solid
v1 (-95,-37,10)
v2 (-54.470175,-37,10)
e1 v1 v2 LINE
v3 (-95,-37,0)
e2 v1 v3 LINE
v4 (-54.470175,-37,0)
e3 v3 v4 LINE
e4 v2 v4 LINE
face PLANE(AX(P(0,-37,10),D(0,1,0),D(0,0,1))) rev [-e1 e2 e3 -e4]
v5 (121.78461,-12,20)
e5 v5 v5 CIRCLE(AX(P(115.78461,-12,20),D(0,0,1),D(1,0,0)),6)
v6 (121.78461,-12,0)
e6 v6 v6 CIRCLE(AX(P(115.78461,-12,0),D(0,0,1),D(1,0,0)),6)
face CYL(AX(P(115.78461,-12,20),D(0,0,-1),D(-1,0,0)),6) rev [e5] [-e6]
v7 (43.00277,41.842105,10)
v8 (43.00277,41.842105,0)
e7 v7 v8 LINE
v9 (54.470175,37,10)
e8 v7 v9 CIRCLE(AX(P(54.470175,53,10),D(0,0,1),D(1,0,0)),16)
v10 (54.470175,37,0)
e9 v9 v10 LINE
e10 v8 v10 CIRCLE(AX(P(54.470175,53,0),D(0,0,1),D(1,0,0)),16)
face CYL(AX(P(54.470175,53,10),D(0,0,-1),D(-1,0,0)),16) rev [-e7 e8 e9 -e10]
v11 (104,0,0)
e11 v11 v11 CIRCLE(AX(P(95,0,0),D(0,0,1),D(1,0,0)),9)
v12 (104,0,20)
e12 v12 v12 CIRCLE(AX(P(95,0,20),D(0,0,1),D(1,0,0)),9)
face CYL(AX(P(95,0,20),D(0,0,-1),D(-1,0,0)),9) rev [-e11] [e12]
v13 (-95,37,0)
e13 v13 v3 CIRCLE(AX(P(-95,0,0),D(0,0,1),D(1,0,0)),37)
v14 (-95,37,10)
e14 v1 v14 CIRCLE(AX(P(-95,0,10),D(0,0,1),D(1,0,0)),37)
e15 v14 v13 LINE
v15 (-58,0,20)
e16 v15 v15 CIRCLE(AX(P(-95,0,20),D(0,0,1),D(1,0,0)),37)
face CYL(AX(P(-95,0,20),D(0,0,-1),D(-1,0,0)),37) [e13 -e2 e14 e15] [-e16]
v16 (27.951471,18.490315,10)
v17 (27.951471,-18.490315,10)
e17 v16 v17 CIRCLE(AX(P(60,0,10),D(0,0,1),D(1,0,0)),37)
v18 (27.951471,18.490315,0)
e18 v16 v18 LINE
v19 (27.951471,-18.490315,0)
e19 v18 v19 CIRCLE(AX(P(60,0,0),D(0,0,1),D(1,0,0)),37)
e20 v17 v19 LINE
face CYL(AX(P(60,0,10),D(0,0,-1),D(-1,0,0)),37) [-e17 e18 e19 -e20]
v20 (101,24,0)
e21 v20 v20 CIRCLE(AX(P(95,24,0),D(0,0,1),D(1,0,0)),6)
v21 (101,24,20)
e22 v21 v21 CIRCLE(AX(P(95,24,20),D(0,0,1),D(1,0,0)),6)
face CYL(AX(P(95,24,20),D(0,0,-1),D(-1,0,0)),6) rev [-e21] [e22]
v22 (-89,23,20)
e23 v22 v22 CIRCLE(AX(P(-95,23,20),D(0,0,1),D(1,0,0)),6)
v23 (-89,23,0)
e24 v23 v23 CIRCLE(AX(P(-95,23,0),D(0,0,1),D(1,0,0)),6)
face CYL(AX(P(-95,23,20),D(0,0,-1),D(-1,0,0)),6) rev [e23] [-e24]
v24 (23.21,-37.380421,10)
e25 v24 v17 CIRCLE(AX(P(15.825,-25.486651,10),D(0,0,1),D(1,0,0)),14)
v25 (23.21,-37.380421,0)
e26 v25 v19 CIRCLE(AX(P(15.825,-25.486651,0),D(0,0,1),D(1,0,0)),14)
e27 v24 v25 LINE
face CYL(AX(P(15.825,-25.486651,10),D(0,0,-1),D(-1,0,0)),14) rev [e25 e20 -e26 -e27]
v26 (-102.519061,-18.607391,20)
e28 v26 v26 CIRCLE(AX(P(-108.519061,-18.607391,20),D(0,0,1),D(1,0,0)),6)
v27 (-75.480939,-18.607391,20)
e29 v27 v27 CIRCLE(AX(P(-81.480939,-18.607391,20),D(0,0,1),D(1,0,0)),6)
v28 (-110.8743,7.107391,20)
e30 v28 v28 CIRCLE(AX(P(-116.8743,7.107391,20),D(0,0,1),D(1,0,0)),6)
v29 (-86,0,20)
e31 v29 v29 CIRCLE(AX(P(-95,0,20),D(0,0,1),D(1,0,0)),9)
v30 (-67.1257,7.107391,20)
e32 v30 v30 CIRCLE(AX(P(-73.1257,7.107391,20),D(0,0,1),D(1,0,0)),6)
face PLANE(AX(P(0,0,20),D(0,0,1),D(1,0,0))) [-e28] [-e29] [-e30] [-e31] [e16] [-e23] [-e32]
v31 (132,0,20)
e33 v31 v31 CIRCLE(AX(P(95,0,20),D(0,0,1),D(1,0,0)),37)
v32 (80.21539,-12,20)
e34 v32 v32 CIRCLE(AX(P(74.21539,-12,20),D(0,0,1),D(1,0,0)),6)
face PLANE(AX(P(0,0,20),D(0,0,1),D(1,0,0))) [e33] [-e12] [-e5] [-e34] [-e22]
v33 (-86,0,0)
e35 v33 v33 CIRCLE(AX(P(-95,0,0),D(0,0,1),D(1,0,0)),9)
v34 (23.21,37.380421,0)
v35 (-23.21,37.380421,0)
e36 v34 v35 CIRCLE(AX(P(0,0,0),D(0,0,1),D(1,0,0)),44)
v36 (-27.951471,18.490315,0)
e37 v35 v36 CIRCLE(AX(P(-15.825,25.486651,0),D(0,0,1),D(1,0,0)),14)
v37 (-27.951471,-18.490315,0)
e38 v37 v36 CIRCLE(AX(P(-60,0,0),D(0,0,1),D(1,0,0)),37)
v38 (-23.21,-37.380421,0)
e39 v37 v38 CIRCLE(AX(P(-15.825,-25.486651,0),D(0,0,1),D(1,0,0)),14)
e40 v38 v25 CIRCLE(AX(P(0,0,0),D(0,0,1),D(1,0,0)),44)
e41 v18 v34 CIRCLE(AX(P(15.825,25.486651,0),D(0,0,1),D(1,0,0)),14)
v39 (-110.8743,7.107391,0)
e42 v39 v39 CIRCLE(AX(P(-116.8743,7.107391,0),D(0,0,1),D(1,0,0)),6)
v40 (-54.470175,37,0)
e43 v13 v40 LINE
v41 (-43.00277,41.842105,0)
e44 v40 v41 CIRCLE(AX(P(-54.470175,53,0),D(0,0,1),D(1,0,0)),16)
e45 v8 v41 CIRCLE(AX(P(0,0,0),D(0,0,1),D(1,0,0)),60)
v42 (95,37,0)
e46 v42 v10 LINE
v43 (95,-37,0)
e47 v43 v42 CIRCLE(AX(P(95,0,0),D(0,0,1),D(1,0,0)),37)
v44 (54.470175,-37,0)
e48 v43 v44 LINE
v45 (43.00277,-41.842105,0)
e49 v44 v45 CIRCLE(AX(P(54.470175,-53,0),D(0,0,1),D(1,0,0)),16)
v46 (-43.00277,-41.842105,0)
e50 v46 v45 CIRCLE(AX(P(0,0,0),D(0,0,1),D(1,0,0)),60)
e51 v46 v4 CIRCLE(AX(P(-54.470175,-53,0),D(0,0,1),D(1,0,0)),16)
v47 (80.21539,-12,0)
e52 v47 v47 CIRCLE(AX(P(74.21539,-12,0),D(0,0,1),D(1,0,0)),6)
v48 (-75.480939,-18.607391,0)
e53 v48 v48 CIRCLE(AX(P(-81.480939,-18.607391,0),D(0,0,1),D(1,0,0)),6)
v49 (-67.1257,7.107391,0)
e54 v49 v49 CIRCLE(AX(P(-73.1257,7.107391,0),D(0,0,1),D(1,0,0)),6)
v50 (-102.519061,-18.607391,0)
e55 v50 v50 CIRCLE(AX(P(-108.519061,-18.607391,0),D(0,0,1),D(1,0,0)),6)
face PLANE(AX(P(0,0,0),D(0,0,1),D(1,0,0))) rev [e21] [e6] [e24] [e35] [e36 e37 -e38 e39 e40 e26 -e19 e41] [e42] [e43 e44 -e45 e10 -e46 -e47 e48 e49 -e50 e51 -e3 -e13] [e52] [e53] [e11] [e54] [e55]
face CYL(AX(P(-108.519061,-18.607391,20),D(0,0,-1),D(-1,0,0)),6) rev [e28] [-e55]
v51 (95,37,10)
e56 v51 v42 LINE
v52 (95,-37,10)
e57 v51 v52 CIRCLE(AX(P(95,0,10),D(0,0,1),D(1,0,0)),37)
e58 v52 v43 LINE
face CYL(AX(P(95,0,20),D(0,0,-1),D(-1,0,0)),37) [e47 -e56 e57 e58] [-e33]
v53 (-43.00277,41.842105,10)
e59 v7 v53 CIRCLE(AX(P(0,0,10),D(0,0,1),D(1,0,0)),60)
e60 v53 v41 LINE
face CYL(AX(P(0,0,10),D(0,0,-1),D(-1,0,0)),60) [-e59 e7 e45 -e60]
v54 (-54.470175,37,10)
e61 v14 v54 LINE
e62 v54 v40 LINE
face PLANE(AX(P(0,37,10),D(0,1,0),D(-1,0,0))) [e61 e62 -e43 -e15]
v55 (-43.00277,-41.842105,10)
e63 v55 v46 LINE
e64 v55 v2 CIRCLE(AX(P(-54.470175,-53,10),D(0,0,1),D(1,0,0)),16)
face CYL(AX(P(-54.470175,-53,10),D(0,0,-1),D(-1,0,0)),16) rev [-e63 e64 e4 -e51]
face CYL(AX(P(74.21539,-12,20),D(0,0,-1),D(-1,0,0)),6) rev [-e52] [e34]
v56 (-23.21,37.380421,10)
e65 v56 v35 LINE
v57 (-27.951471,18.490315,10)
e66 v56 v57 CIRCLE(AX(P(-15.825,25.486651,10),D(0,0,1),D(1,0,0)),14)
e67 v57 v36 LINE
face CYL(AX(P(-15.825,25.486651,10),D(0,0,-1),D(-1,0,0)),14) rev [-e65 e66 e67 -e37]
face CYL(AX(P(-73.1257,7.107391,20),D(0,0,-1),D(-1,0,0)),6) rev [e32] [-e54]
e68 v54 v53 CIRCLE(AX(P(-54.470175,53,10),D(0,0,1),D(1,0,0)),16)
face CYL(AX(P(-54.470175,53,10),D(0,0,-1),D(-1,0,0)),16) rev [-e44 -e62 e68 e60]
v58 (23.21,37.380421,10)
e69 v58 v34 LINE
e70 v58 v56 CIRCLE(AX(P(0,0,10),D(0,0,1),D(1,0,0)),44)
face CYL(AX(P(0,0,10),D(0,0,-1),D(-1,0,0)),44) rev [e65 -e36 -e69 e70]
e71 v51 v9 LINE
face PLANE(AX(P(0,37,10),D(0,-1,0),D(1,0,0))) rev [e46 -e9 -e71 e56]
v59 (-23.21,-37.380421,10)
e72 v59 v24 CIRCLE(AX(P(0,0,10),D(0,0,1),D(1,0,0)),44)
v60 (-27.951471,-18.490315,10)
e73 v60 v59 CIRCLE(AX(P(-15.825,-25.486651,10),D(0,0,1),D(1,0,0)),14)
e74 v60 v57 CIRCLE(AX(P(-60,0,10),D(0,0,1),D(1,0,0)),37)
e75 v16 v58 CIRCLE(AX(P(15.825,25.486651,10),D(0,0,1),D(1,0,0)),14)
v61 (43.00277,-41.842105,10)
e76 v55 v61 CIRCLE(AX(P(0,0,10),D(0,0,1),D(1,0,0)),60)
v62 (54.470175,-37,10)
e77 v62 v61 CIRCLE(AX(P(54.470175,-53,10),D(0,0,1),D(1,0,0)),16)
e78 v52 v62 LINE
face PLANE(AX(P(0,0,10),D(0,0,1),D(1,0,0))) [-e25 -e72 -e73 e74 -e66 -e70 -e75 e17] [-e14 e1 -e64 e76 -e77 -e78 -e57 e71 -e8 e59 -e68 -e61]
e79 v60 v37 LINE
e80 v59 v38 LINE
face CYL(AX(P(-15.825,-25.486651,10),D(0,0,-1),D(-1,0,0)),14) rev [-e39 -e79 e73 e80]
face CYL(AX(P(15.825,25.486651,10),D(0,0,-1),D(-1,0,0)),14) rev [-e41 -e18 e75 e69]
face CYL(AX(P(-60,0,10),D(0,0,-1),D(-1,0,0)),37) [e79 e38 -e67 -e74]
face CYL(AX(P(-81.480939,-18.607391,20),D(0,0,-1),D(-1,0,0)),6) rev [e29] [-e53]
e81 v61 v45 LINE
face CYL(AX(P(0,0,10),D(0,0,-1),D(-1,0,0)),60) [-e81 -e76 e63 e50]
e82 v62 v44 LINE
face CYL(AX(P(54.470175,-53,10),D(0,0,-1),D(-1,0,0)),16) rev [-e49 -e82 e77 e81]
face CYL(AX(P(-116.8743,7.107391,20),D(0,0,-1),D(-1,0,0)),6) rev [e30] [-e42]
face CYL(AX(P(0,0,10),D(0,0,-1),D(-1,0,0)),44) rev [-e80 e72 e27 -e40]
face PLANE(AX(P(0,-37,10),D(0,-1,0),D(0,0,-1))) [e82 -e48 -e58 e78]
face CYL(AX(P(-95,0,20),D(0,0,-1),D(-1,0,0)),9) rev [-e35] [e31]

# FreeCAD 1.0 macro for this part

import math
import FreeCAD as App
import Part
import Sketcher

doc = App.newDocument("Part")
body = doc.addObject("PartDesign::Body", "Body")

sketch1 = body.newObject("Sketcher::SketchObject", "Sketch")
sketch1.AttachmentSupport = (doc.getObject("XY_Plane"), [""])
sketch1.MapMode = "FlatFace"
sketch1.addGeometry([
    Part.LineSegment(App.Vector(-54.470175, 37, 0), App.Vector(-95, 37, 0)),
    Part.ArcOfCircle(Part.Circle(App.Vector(-95, 0, 0), App.Vector(0, 0, 1), 37), math.radians(0), math.radians(90)),
    Part.ArcOfCircle(Part.Circle(App.Vector(-95, 0, 0), App.Vector(0, 0, 1), 37), math.radians(-90), math.radians(0)),
    Part.LineSegment(App.Vector(-95, -37, 0), App.Vector(-54.470175, -37, 0)),
    Part.ArcOfCircle(Part.Circle(App.Vector(-54.470175, -53, 0), App.Vector(0, 0, 1), 16), math.radians(44.216252), math.radians(90)),
    Part.ArcOfCircle(Part.Circle(App.Vector(0, 0, 0), App.Vector(0, 0, 1), 60), math.radians(-135.783748), math.radians(-44.216252)),
    Part.ArcOfCircle(Part.Circle(App.Vector(54.470175, -53, 0), App.Vector(0, 0, 1), 16), math.radians(90), math.radians(135.783748)),
    Part.LineSegment(App.Vector(54.470175, -37, 0), App.Vector(95, -37, 0)),
    Part.ArcOfCircle(Part.Circle(App.Vector(95, 0, 0), App.Vector(0, 0, 1), 37), math.radians(90), math.radians(270)),
    Part.LineSegment(App.Vector(95, 37, 0), App.Vector(54.470175, 37, 0)),
    Part.ArcOfCircle(Part.Circle(App.Vector(54.470175, 53, 0), App.Vector(0, 0, 1), 16), math.radians(-135.783748), math.radians(-90)),
    Part.ArcOfCircle(Part.Circle(App.Vector(0, 0, 0), App.Vector(0, 0, 1), 60), math.radians(44.216252), math.radians(135.783748)),
    Part.ArcOfCircle(Part.Circle(App.Vector(-54.470175, 53, 0), App.Vector(0, 0, 1), 16), math.radians(-90), math.radians(-44.216252)),
    Part.ArcOfCircle(Part.Circle(App.Vector(-15.825, 25.486651, 0), App.Vector(0, 0, 1), 14), math.radians(121.836695), math.radians(209.982684)),
    Part.ArcOfCircle(Part.Circle(App.Vector(0, 0, 0), App.Vector(0, 0, 1), 44), math.radians(58.163305), math.radians(121.836695)),
    Part.ArcOfCircle(Part.Circle(App.Vector(15.825, 25.486651, 0), App.Vector(0, 0, 1), 14), math.radians(-29.982684), math.radians(58.163305)),
    Part.ArcOfCircle(Part.Circle(App.Vector(60, 0, 0), App.Vector(0, 0, 1), 37), math.radians(150.017316), math.radians(209.982684)),
    Part.ArcOfCircle(Part.Circle(App.Vector(15.825, -25.486651, 0), App.Vector(0, 0, 1), 14), math.radians(-58.163305), math.radians(29.982684)),
    Part.ArcOfCircle(Part.Circle(App.Vector(0, 0, 0), App.Vector(0, 0, 1), 44), math.radians(-121.836695), math.radians(-58.163305)),
    Part.ArcOfCircle(Part.Circle(App.Vector(-15.825, -25.486651, 0), App.Vector(0, 0, 1), 14), math.radians(150.017316), math.radians(238.163305)),
    Part.ArcOfCircle(Part.Circle(App.Vector(-60, 0, 0), App.Vector(0, 0, 1), 37), math.radians(-29.982684), math.radians(29.982684)),
], False)
sketch1.addConstraint([
    Sketcher.Constraint("Tangent", 0, 2, 1, 2),
    Sketcher.Constraint("Tangent", 1, 1, 2, 2),
    Sketcher.Constraint("Tangent", 2, 1, 3, 1),
    Sketcher.Constraint("Tangent", 3, 2, 4, 2),
    Sketcher.Constraint("Tangent", 4, 1, 5, 1),
    Sketcher.Constraint("Tangent", 5, 2, 6, 2),
    Sketcher.Constraint("Tangent", 6, 1, 7, 1),
    Sketcher.Constraint("Tangent", 7, 2, 8, 2),
    Sketcher.Constraint("Tangent", 8, 1, 9, 1),
    Sketcher.Constraint("Tangent", 9, 2, 10, 2),
    Sketcher.Constraint("Tangent", 10, 1, 11, 1),
    Sketcher.Constraint("Tangent", 11, 2, 12, 2),
    Sketcher.Constraint("Tangent", 12, 1, 0, 1),
    Sketcher.Constraint("Tangent", 13, 1, 14, 2),
    Sketcher.Constraint("Tangent", 14, 1, 15, 2),
    Sketcher.Constraint("Tangent", 15, 1, 16, 1),
    Sketcher.Constraint("Tangent", 16, 2, 17, 2),
    Sketcher.Constraint("Tangent", 17, 1, 18, 2),
    Sketcher.Constraint("Tangent", 18, 1, 19, 2),
    Sketcher.Constraint("Tangent", 19, 1, 20, 1),
    Sketcher.Constraint("Tangent", 20, 2, 13, 2),
    Sketcher.Constraint("Horizontal", 0),
    Sketcher.Constraint("Horizontal", 3),
    Sketcher.Constraint("Horizontal", 7),
    Sketcher.Constraint("Horizontal", 9),
    Sketcher.Constraint("Coincident", 5, 3, -1, 1),
    Sketcher.Constraint("Coincident", 11, 3, -1, 1),
    Sketcher.Constraint("Coincident", 14, 3, -1, 1),
    Sketcher.Constraint("Coincident", 18, 3, -1, 1),
    Sketcher.Constraint("Equal", 1, 2),
    Sketcher.Constraint("Equal", 4, 6),
    Sketcher.Constraint("Equal", 2, 8),
    Sketcher.Constraint("Equal", 6, 10),
    Sketcher.Constraint("Equal", 5, 11),
    Sketcher.Constraint("Equal", 10, 12),
    Sketcher.Constraint("Equal", 13, 15),
    Sketcher.Constraint("Equal", 8, 16),
    Sketcher.Constraint("Equal", 15, 17),
    Sketcher.Constraint("Equal", 14, 18),
    Sketcher.Constraint("Equal", 17, 19),
    Sketcher.Constraint("Equal", 16, 20),
    Sketcher.Constraint("Symmetric", 1, 3, 8, 3, -1, 1),
    Sketcher.Constraint("Symmetric", 16, 3, 20, 3, -1, 1),
    Sketcher.Constraint("PointOnObject", 1, 3, -1),
    Sketcher.Constraint("PointOnObject", 16, 3, -1),
    Sketcher.Constraint("PointOnObject", 1, 1, -1),
    Sketcher.Constraint("Radius", 1, 37.0),
    Sketcher.Constraint("Radius", 4, 16.0),
    Sketcher.Constraint("Radius", 5, 60.0),
    Sketcher.Constraint("Radius", 13, 14.0),
    Sketcher.Constraint("Radius", 14, 44.0),
    Sketcher.Constraint("DistanceX", 1, 3, -1, 1, 95.0),
    Sketcher.Constraint("DistanceX", -1, 1, 16, 3, 60.0),
])
pad1 = body.newObject("PartDesign::Pad", "Pad")
pad1.Profile = sketch1
pad1.Length = 10

sketch2 = body.newObject("Sketcher::SketchObject", "Sketch001")
sketch2.AttachmentSupport = (doc.getObject("XY_Plane"), [""])
sketch2.MapMode = "FlatFace"
sketch2.addGeometry([
    Part.Circle(App.Vector(95, 0, 0), App.Vector(0, 0, 1), 37),
    Part.Circle(App.Vector(74.21539, -12, 0), App.Vector(0, 0, 1), 6),
    Part.Circle(App.Vector(95, 24, 0), App.Vector(0, 0, 1), 6),
    Part.Circle(App.Vector(95, 0, 0), App.Vector(0, 0, 1), 9),
    Part.Circle(App.Vector(115.78461, -12, 0), App.Vector(0, 0, 1), 6),
    Part.Circle(App.Vector(-95, 0, 0), App.Vector(0, 0, 1), 37),
    Part.Circle(App.Vector(-81.480939, -18.607391, 0), App.Vector(0, 0, 1), 6),
    Part.Circle(App.Vector(-73.1257, 7.107391, 0), App.Vector(0, 0, 1), 6),
    Part.Circle(App.Vector(-108.519061, -18.607391, 0), App.Vector(0, 0, 1), 6),
    Part.Circle(App.Vector(-95, 0, 0), App.Vector(0, 0, 1), 9),
    Part.Circle(App.Vector(-95, 23, 0), App.Vector(0, 0, 1), 6),
    Part.Circle(App.Vector(-116.8743, 7.107391, 0), App.Vector(0, 0, 1), 6),
], False)
sketch2.addConstraint([
    Sketcher.Constraint("Coincident", 3, 3, 0, 3),
    Sketcher.Constraint("Coincident", 9, 3, 5, 3),
    Sketcher.Constraint("Equal", 1, 2),
    Sketcher.Constraint("Equal", 2, 4),
    Sketcher.Constraint("Equal", 0, 5),
    Sketcher.Constraint("Equal", 4, 6),
    Sketcher.Constraint("Equal", 6, 7),
    Sketcher.Constraint("Equal", 7, 8),
    Sketcher.Constraint("Equal", 3, 9),
    Sketcher.Constraint("Equal", 8, 10),
    Sketcher.Constraint("Equal", 10, 11),
    Sketcher.Constraint("Symmetric", 0, 3, 5, 3, -1, 1),
    Sketcher.Constraint("PointOnObject", 0, 3, -1),
    Sketcher.Constraint("Horizontal", 1, 3, 4, 3),
    Sketcher.Constraint("Horizontal", 6, 3, 8, 3),
    Sketcher.Constraint("Horizontal", 7, 3, 11, 3),
    Sketcher.Constraint("Vertical", 0, 3, 2, 3),
    Sketcher.Constraint("Vertical", 9, 3, 10, 3),
    Sketcher.Constraint("Diameter", 0, 74.0),
    Sketcher.Constraint("Diameter", 1, 12.0),
    Sketcher.Constraint("Diameter", 3, 18.0),
    Sketcher.Constraint("DistanceX", -1, 1, 0, 3, 95.0),
    Sketcher.Constraint("DistanceY", 1, 3, -1, 1, 12.0),
    Sketcher.Constraint("DistanceY", -1, 1, 2, 3, 24.0),
    Sketcher.Constraint("DistanceY", -1, 1, 10, 3, 23.0),
    Sketcher.Constraint("DistanceX", 7, 3, -1, 1, 73.1257),
    Sketcher.Constraint("DistanceX", 11, 3, -1, 1, 116.8743),
    Sketcher.Constraint("DistanceX", -1, 1, 1, 3, 74.21539),
    Sketcher.Constraint("DistanceX", -1, 1, 4, 3, 115.78461),
    Sketcher.Constraint("DistanceX", 6, 3, -1, 1, 81.480939),
    Sketcher.Constraint("DistanceY", 6, 3, -1, 1, 18.607391),
    Sketcher.Constraint("DistanceY", -1, 1, 7, 3, 7.107391),
    Sketcher.Constraint("DistanceX", 8, 3, -1, 1, 108.519061),
])
pad2 = body.newObject("PartDesign::Pad", "Pad001")
pad2.Profile = sketch2
pad2.Length = 20

doc.recompute()
